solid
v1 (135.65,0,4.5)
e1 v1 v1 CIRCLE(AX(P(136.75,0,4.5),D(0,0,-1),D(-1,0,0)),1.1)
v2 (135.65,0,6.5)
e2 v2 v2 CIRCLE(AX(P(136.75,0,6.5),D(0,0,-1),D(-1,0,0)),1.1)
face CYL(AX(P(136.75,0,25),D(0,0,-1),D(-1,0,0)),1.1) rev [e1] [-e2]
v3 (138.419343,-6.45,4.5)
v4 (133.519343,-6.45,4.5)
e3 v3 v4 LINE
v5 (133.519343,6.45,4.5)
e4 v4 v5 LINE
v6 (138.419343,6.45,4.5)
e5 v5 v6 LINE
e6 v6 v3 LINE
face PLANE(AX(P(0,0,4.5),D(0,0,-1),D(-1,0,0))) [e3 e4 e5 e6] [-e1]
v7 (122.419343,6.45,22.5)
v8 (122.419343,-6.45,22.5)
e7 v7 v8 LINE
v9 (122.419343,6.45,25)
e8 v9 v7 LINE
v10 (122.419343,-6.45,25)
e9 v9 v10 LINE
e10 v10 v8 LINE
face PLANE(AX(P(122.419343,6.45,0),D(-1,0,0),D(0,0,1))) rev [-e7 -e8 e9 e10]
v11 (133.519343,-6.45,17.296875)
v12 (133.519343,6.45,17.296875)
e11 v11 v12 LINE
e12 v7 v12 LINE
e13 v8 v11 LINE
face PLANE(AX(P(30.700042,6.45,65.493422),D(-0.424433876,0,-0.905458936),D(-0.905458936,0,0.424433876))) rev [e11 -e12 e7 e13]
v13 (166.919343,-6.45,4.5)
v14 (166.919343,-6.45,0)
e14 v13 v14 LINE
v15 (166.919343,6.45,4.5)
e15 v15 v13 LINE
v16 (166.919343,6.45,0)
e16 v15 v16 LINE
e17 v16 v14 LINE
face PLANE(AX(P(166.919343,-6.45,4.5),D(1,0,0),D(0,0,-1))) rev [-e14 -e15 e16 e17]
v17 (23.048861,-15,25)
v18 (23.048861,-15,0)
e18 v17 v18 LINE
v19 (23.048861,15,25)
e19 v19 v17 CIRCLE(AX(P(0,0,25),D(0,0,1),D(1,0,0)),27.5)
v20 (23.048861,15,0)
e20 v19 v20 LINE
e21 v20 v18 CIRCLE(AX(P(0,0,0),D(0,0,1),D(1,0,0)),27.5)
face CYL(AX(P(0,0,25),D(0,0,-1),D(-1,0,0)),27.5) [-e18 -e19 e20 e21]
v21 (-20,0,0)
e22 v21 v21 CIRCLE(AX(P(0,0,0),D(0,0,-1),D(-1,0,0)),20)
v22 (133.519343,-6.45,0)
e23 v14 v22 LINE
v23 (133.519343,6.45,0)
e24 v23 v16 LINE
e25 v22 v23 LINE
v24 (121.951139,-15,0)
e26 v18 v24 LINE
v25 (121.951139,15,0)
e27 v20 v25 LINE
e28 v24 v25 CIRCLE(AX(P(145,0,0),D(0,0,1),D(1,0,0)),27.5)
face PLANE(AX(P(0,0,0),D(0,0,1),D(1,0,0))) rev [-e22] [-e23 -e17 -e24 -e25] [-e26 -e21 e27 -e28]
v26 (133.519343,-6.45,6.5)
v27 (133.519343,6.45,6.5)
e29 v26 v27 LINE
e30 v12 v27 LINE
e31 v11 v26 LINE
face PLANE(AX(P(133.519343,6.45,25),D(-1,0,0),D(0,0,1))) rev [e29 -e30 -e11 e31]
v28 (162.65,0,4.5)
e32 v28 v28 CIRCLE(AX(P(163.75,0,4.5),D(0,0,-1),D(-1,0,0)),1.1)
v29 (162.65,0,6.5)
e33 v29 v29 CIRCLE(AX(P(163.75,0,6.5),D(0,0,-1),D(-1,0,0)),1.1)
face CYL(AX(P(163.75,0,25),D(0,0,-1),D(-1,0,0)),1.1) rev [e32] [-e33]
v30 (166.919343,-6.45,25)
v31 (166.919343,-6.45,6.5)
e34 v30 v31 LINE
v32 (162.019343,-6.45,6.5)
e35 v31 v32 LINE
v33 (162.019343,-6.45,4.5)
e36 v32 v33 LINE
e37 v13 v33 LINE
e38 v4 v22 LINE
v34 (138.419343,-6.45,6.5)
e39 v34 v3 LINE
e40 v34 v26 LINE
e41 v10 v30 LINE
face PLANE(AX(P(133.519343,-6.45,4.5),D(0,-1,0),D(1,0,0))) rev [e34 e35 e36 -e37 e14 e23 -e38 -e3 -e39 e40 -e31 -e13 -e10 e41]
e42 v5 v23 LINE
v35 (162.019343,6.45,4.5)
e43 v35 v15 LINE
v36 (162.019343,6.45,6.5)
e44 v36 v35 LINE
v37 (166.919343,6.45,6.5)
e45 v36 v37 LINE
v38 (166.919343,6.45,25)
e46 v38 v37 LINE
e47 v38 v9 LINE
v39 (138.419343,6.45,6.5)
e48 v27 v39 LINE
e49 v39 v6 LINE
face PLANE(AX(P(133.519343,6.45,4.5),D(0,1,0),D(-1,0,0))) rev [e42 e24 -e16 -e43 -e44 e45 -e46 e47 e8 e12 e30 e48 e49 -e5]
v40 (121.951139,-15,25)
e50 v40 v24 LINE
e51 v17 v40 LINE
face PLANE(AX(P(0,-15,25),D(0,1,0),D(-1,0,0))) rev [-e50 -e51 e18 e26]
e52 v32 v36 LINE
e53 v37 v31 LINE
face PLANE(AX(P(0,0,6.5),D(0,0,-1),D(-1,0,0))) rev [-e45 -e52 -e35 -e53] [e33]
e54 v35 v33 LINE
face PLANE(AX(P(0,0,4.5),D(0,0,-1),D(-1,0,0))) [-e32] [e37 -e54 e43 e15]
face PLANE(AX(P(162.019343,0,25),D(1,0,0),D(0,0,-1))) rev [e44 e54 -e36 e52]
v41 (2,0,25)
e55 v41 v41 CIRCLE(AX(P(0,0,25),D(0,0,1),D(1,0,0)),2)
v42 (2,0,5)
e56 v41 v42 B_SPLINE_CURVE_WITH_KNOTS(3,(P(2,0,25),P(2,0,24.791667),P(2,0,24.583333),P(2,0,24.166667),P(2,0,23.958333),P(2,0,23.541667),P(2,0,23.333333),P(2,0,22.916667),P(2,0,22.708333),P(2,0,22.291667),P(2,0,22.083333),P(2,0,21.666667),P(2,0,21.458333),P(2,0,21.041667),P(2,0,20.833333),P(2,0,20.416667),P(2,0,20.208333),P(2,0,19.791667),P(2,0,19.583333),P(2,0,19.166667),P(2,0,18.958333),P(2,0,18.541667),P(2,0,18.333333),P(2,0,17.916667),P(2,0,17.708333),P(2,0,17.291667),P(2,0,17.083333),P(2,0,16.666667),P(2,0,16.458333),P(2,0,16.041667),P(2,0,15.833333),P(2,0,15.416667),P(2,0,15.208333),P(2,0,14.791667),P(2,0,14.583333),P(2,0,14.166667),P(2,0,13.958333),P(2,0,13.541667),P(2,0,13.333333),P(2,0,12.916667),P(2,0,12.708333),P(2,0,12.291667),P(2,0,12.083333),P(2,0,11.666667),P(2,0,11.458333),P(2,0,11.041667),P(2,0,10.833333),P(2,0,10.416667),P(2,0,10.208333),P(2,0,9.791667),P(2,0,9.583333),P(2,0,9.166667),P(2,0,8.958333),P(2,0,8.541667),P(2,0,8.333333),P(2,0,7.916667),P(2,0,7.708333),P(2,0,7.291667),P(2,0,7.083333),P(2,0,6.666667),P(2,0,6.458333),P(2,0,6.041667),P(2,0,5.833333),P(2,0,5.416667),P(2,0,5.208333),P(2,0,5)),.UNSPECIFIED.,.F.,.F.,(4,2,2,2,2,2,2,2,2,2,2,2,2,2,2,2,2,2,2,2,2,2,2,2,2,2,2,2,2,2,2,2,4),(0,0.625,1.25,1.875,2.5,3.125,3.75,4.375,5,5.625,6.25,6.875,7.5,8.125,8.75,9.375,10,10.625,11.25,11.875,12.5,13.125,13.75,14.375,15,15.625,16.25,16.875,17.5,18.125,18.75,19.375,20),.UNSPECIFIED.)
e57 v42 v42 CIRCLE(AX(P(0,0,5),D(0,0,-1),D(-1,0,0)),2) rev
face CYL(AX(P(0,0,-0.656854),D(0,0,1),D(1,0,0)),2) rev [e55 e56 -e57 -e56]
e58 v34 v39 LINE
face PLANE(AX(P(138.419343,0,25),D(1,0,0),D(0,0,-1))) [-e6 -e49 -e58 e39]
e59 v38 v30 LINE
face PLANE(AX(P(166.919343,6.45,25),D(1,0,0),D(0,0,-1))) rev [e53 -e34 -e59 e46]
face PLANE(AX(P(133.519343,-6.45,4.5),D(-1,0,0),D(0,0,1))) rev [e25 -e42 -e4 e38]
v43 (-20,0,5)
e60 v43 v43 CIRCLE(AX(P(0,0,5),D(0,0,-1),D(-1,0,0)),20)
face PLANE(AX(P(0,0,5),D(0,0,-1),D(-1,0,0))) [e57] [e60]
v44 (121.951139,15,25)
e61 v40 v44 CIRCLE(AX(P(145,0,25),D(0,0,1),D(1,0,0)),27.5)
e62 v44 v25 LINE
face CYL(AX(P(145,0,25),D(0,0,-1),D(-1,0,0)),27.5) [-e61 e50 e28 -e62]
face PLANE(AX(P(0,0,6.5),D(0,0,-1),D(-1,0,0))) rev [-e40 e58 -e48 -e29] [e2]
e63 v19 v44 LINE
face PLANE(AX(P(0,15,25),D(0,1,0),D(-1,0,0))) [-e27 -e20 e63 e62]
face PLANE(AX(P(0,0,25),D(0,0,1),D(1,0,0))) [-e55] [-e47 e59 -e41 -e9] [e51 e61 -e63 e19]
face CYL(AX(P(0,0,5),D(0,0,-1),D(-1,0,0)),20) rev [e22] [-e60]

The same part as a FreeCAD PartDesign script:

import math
import FreeCAD as App
import Part
import Sketcher

doc = App.newDocument("Part")
body = doc.addObject("PartDesign::Body", "Body")

# Sketch on XY plane
sketch1 = doc.addObject("Sketcher::SketchObject", "Sketch")
body.addObject(sketch1)
sketch1.AttachmentSupport = (doc.XY_Plane, [""])
sketch1.MapMode = "FlatFace"
sketch1.addGeometry(Part.LineSegment(App.Vector(23.048861, -15, 0), App.Vector(121.951139, -15, 0)), False)
sketch1.addGeometry(Part.ArcOfCircle(Part.Circle(App.Vector(145, 0, 0), App.Vector(0, 0, 1), 27.5), math.radians(-146.944269), math.radians(0)), False)
sketch1.addGeometry(Part.ArcOfCircle(Part.Circle(App.Vector(145, 0, 0), App.Vector(0, 0, 1), 27.5), math.radians(0), math.radians(146.944269)), False)
sketch1.addGeometry(Part.LineSegment(App.Vector(121.951139, 15, 0), App.Vector(23.048861, 15, 0)), False)
sketch1.addGeometry(Part.ArcOfCircle(Part.Circle(App.Vector(0, 0, 0), App.Vector(0, 0, 1), 27.5), math.radians(33.055731), math.radians(326.944269)), False)
sketch1.addConstraint(Sketcher.Constraint("Coincident", 0, 2, 1, 1))
sketch1.addConstraint(Sketcher.Constraint("Tangent", 1, 2, 2, 1))
sketch1.addConstraint(Sketcher.Constraint("Coincident", 2, 2, 3, 1))
sketch1.addConstraint(Sketcher.Constraint("Coincident", 3, 2, 4, 1))
sketch1.addConstraint(Sketcher.Constraint("Coincident", 4, 2, 0, 1))
sketch1.addConstraint(Sketcher.Constraint("Horizontal", 0))
sketch1.addConstraint(Sketcher.Constraint("Horizontal", 3))
sketch1.addConstraint(Sketcher.Constraint("Coincident", 4, 3, -1, 1))
sketch1.addConstraint(Sketcher.Constraint("Equal", 1, 2))
sketch1.addConstraint(Sketcher.Constraint("Equal", 2, 4))
sketch1.addConstraint(Sketcher.Constraint("Symmetric", 0, 2, 2, 2, -1))
sketch1.addConstraint(Sketcher.Constraint("PointOnObject", 1, 2, -1))
sketch1.addConstraint(Sketcher.Constraint("Radius", 1, 27.5))
sketch1.addConstraint(Sketcher.Constraint("DistanceX", -1, 1, 1, 3, 145.0))
sketch1.addConstraint(Sketcher.Constraint("DistanceY", 0, 2, -1, 1, 15.0))
pad1 = doc.addObject("PartDesign::Pad", "Pad")
body.addObject(pad1)
pad1.Profile = sketch1
pad1.Length = 25

# Sketch on XY plane
sketch2 = doc.addObject("Sketcher::SketchObject", "Sketch001")
body.addObject(sketch2)
sketch2.AttachmentSupport = (doc.XY_Plane, [""])
sketch2.MapMode = "FlatFace"
sketch2.addGeometry(Part.LineSegment(App.Vector(166.919343, 6.45, 0), App.Vector(166.919343, -6.45, 0)), False)
sketch2.addGeometry(Part.LineSegment(App.Vector(166.919343, -6.45, 0), App.Vector(133.519343, -6.45, 0)), False)
sketch2.addGeometry(Part.LineSegment(App.Vector(133.519343, -6.45, 0), App.Vector(133.519343, 6.45, 0)), False)
sketch2.addGeometry(Part.LineSegment(App.Vector(133.519343, 6.45, 0), App.Vector(166.919343, 6.45, 0)), False)
sketch2.addConstraint(Sketcher.Constraint("Coincident", 0, 2, 1, 1))
sketch2.addConstraint(Sketcher.Constraint("Coincident", 1, 2, 2, 1))
sketch2.addConstraint(Sketcher.Constraint("Coincident", 2, 2, 3, 1))
sketch2.addConstraint(Sketcher.Constraint("Coincident", 3, 2, 0, 1))
sketch2.addConstraint(Sketcher.Constraint("Vertical", 0))
sketch2.addConstraint(Sketcher.Constraint("Horizontal", 1))
sketch2.addConstraint(Sketcher.Constraint("Vertical", 2))
sketch2.addConstraint(Sketcher.Constraint("Horizontal", 3))
sketch2.addConstraint(Sketcher.Constraint("DistanceX", 1, 2, 1, 1, 33.4))
sketch2.addConstraint(Sketcher.Constraint("DistanceY", 0, 2, 0, 1, 12.9))
sketch2.addConstraint(Sketcher.Constraint("DistanceY", 0, 2, -1, 1, 6.45))
sketch2.addConstraint(Sketcher.Constraint("DistanceX", -1, 1, 0, 2, 166.919343))
pocket1 = doc.addObject("PartDesign::Pocket", "Pocket")
body.addObject(pocket1)
pocket1.Profile = sketch2
pocket1.Length = 4.5
pocket1.Reversed = True

# Sketch on XY plane
sketch3 = doc.addObject("Sketcher::SketchObject", "Sketch002")
body.addObject(sketch3)
sketch3.AttachmentSupport = (doc.XY_Plane, [""])
sketch3.MapMode = "FlatFace"
sketch3.addGeometry(Part.Circle(App.Vector(0, 0, 0), App.Vector(0, 0, 1), 20), False)
sketch3.addConstraint(Sketcher.Constraint("Coincident", 0, 3, -1, 1))
sketch3.addConstraint(Sketcher.Constraint("Diameter", 0, 40.0))
pocket2 = doc.addObject("PartDesign::Pocket", "Pocket001")
body.addObject(pocket2)
pocket2.Profile = sketch3
pocket2.Length = 5
pocket2.Reversed = True

# Sketch on XY plane
sketch4 = doc.addObject("Sketcher::SketchObject", "Sketch003")
body.addObject(sketch4)
sketch4.AttachmentSupport = (doc.XY_Plane, [""])
sketch4.MapMode = "FlatFace"
sketch4.addGeometry(Part.LineSegment(App.Vector(162.019343, 6.45, 0), App.Vector(162.019343, -6.45, 0)), False)
sketch4.addGeometry(Part.LineSegment(App.Vector(162.019343, -6.45, 0), App.Vector(138.419343, -6.45, 0)), False)
sketch4.addGeometry(Part.LineSegment(App.Vector(138.419343, -6.45, 0), App.Vector(138.419343, 6.45, 0)), False)
sketch4.addGeometry(Part.LineSegment(App.Vector(138.419343, 6.45, 0), App.Vector(162.019343, 6.45, 0)), False)
sketch4.addConstraint(Sketcher.Constraint("Coincident", 0, 2, 1, 1))
sketch4.addConstraint(Sketcher.Constraint("Coincident", 1, 2, 2, 1))
sketch4.addConstraint(Sketcher.Constraint("Coincident", 2, 2, 3, 1))
sketch4.addConstraint(Sketcher.Constraint("Coincident", 3, 2, 0, 1))
sketch4.addConstraint(Sketcher.Constraint("Vertical", 0))
sketch4.addConstraint(Sketcher.Constraint("Horizontal", 1))
sketch4.addConstraint(Sketcher.Constraint("Vertical", 2))
sketch4.addConstraint(Sketcher.Constraint("Horizontal", 3))
sketch4.addConstraint(Sketcher.Constraint("DistanceX", 1, 2, 1, 1, 23.6))
sketch4.addConstraint(Sketcher.Constraint("DistanceY", 0, 2, 0, 1, 12.9))
sketch4.addConstraint(Sketcher.Constraint("DistanceY", 0, 2, -1, 1, 6.45))
sketch4.addConstraint(Sketcher.Constraint("DistanceX", -1, 1, 0, 2, 162.019343))
pocket3 = doc.addObject("PartDesign::Pocket", "Pocket002")
body.addObject(pocket3)
pocket3.Profile = sketch4
pocket3.Type = "ThroughAll"
pocket3.Reversed = True

# Sketch on XZ plane
sketch5 = doc.addObject("Sketcher::SketchObject", "Sketch004")
body.addObject(sketch5)
sketch5.AttachmentSupport = (doc.XZ_Plane, [""])
sketch5.MapMode = "FlatFace"
sketch5.addGeometry(Part.LineSegment(App.Vector(138.419343, 15, 0), App.Vector(138.419343, 25, 0)), False)
sketch5.addGeometry(Part.LineSegment(App.Vector(138.419343, 25, 0), App.Vector(122.419343, 25, 0)), False)
sketch5.addGeometry(Part.LineSegment(App.Vector(122.419343, 25, 0), App.Vector(122.419343, 22.5, 0)), False)
sketch5.addGeometry(Part.LineSegment(App.Vector(122.419343, 22.5, 0), App.Vector(138.419343, 15, 0)), False)
sketch5.addConstraint(Sketcher.Constraint("Coincident", 0, 2, 1, 1))
sketch5.addConstraint(Sketcher.Constraint("Coincident", 1, 2, 2, 1))
sketch5.addConstraint(Sketcher.Constraint("Coincident", 2, 2, 3, 1))
sketch5.addConstraint(Sketcher.Constraint("Coincident", 3, 2, 0, 1))
sketch5.addConstraint(Sketcher.Constraint("Vertical", 0))
sketch5.addConstraint(Sketcher.Constraint("Horizontal", 1))
sketch5.addConstraint(Sketcher.Constraint("Vertical", 2))
sketch5.addConstraint(Sketcher.Constraint("DistanceX", 1, 2, 1, 1, 16.0))
sketch5.addConstraint(Sketcher.Constraint("DistanceY", 0, 1, 0, 2, 10.0))
sketch5.addConstraint(Sketcher.Constraint("DistanceY", 2, 2, 2, 1, 2.5))
sketch5.addConstraint(Sketcher.Constraint("DistanceY", -1, 1, 0, 2, 25.0))
sketch5.addConstraint(Sketcher.Constraint("DistanceX", -1, 1, 0, 2, 138.419343))
pocket4 = doc.addObject("PartDesign::Pocket", "Pocket003")
body.addObject(pocket4)
pocket4.Profile = sketch5
pocket4.Length = 12.9
pocket4.Midplane = True

# Sketch on XY plane
sketch6 = doc.addObject("Sketcher::SketchObject", "Sketch005")
body.addObject(sketch6)
sketch6.AttachmentSupport = (doc.XY_Plane, [""])
sketch6.MapMode = "FlatFace"
sketch6.AttachmentOffset = App.Placement(App.Vector(0, 0, 6.5), App.Rotation())
sketch6.addGeometry(Part.LineSegment(App.Vector(166.919343, 6.45, 0), App.Vector(166.919343, -6.45, 0)), False)
sketch6.addGeometry(Part.LineSegment(App.Vector(166.919343, -6.45, 0), App.Vector(133.519343, -6.45, 0)), False)
sketch6.addGeometry(Part.LineSegment(App.Vector(133.519343, -6.45, 0), App.Vector(133.519343, 6.45, 0)), False)
sketch6.addGeometry(Part.LineSegment(App.Vector(133.519343, 6.45, 0), App.Vector(166.919343, 6.45, 0)), False)
sketch6.addConstraint(Sketcher.Constraint("Coincident", 0, 2, 1, 1))
sketch6.addConstraint(Sketcher.Constraint("Coincident", 1, 2, 2, 1))
sketch6.addConstraint(Sketcher.Constraint("Coincident", 2, 2, 3, 1))
sketch6.addConstraint(Sketcher.Constraint("Coincident", 3, 2, 0, 1))
sketch6.addConstraint(Sketcher.Constraint("Vertical", 0))
sketch6.addConstraint(Sketcher.Constraint("Horizontal", 1))
sketch6.addConstraint(Sketcher.Constraint("Vertical", 2))
sketch6.addConstraint(Sketcher.Constraint("Horizontal", 3))
sketch6.addConstraint(Sketcher.Constraint("DistanceX", 1, 2, 1, 1, 33.4))
sketch6.addConstraint(Sketcher.Constraint("DistanceY", 0, 2, 0, 1, 12.9))
sketch6.addConstraint(Sketcher.Constraint("DistanceY", 0, 2, -1, 1, 6.45))
sketch6.addConstraint(Sketcher.Constraint("DistanceX", -1, 1, 0, 2, 166.919343))
pocket5 = doc.addObject("PartDesign::Pocket", "Pocket004")
body.addObject(pocket5)
pocket5.Profile = sketch6
pocket5.Type = "ThroughAll"
pocket5.Reversed = True

# Sketch on XY plane
sketch7 = doc.addObject("Sketcher::SketchObject", "Sketch006")
body.addObject(sketch7)
sketch7.AttachmentSupport = (doc.XY_Plane, [""])
sketch7.MapMode = "FlatFace"
sketch7.addGeometry(Part.Circle(App.Vector(163.75, 0, 0), App.Vector(0, 0, 1), 1.1), False)
sketch7.addGeometry(Part.Circle(App.Vector(136.75, 0, 0), App.Vector(0, 0, 1), 1.1), False)
sketch7.addConstraint(Sketcher.Constraint("Equal", 0, 1))
sketch7.addConstraint(Sketcher.Constraint("PointOnObject", 0, 3, -1))
sketch7.addConstraint(Sketcher.Constraint("PointOnObject", 1, 3, -1))
sketch7.addConstraint(Sketcher.Constraint("Diameter", 0, 2.2))
sketch7.addConstraint(Sketcher.Constraint("DistanceX", 1, 3, 0, 3, 27.0))
sketch7.addConstraint(Sketcher.Constraint("DistanceX", -1, 1, 0, 3, 163.75))
pocket6 = doc.addObject("PartDesign::Pocket", "Pocket005")
body.addObject(pocket6)
pocket6.Profile = sketch7
pocket6.Type = "ThroughAll"
pocket6.Reversed = True

# Sketch on XY plane
sketch8 = doc.addObject("Sketcher::SketchObject", "Sketch007")
body.addObject(sketch8)
sketch8.AttachmentSupport = (doc.XY_Plane, [""])
sketch8.MapMode = "FlatFace"
sketch8.AttachmentOffset = App.Placement(App.Vector(0, 0, 25), App.Rotation())
sketch8.addGeometry(Part.Circle(App.Vector(0, 0, 0), App.Vector(0, 0, 1), 2), False)
sketch8.addConstraint(Sketcher.Constraint("Coincident", 0, 3, -1, 1))
sketch8.addConstraint(Sketcher.Constraint("Diameter", 0, 4.0))
pocket7 = doc.addObject("PartDesign::Pocket", "Pocket006")
body.addObject(pocket7)
pocket7.Profile = sketch8
pocket7.Length = 20

doc.recompute()
